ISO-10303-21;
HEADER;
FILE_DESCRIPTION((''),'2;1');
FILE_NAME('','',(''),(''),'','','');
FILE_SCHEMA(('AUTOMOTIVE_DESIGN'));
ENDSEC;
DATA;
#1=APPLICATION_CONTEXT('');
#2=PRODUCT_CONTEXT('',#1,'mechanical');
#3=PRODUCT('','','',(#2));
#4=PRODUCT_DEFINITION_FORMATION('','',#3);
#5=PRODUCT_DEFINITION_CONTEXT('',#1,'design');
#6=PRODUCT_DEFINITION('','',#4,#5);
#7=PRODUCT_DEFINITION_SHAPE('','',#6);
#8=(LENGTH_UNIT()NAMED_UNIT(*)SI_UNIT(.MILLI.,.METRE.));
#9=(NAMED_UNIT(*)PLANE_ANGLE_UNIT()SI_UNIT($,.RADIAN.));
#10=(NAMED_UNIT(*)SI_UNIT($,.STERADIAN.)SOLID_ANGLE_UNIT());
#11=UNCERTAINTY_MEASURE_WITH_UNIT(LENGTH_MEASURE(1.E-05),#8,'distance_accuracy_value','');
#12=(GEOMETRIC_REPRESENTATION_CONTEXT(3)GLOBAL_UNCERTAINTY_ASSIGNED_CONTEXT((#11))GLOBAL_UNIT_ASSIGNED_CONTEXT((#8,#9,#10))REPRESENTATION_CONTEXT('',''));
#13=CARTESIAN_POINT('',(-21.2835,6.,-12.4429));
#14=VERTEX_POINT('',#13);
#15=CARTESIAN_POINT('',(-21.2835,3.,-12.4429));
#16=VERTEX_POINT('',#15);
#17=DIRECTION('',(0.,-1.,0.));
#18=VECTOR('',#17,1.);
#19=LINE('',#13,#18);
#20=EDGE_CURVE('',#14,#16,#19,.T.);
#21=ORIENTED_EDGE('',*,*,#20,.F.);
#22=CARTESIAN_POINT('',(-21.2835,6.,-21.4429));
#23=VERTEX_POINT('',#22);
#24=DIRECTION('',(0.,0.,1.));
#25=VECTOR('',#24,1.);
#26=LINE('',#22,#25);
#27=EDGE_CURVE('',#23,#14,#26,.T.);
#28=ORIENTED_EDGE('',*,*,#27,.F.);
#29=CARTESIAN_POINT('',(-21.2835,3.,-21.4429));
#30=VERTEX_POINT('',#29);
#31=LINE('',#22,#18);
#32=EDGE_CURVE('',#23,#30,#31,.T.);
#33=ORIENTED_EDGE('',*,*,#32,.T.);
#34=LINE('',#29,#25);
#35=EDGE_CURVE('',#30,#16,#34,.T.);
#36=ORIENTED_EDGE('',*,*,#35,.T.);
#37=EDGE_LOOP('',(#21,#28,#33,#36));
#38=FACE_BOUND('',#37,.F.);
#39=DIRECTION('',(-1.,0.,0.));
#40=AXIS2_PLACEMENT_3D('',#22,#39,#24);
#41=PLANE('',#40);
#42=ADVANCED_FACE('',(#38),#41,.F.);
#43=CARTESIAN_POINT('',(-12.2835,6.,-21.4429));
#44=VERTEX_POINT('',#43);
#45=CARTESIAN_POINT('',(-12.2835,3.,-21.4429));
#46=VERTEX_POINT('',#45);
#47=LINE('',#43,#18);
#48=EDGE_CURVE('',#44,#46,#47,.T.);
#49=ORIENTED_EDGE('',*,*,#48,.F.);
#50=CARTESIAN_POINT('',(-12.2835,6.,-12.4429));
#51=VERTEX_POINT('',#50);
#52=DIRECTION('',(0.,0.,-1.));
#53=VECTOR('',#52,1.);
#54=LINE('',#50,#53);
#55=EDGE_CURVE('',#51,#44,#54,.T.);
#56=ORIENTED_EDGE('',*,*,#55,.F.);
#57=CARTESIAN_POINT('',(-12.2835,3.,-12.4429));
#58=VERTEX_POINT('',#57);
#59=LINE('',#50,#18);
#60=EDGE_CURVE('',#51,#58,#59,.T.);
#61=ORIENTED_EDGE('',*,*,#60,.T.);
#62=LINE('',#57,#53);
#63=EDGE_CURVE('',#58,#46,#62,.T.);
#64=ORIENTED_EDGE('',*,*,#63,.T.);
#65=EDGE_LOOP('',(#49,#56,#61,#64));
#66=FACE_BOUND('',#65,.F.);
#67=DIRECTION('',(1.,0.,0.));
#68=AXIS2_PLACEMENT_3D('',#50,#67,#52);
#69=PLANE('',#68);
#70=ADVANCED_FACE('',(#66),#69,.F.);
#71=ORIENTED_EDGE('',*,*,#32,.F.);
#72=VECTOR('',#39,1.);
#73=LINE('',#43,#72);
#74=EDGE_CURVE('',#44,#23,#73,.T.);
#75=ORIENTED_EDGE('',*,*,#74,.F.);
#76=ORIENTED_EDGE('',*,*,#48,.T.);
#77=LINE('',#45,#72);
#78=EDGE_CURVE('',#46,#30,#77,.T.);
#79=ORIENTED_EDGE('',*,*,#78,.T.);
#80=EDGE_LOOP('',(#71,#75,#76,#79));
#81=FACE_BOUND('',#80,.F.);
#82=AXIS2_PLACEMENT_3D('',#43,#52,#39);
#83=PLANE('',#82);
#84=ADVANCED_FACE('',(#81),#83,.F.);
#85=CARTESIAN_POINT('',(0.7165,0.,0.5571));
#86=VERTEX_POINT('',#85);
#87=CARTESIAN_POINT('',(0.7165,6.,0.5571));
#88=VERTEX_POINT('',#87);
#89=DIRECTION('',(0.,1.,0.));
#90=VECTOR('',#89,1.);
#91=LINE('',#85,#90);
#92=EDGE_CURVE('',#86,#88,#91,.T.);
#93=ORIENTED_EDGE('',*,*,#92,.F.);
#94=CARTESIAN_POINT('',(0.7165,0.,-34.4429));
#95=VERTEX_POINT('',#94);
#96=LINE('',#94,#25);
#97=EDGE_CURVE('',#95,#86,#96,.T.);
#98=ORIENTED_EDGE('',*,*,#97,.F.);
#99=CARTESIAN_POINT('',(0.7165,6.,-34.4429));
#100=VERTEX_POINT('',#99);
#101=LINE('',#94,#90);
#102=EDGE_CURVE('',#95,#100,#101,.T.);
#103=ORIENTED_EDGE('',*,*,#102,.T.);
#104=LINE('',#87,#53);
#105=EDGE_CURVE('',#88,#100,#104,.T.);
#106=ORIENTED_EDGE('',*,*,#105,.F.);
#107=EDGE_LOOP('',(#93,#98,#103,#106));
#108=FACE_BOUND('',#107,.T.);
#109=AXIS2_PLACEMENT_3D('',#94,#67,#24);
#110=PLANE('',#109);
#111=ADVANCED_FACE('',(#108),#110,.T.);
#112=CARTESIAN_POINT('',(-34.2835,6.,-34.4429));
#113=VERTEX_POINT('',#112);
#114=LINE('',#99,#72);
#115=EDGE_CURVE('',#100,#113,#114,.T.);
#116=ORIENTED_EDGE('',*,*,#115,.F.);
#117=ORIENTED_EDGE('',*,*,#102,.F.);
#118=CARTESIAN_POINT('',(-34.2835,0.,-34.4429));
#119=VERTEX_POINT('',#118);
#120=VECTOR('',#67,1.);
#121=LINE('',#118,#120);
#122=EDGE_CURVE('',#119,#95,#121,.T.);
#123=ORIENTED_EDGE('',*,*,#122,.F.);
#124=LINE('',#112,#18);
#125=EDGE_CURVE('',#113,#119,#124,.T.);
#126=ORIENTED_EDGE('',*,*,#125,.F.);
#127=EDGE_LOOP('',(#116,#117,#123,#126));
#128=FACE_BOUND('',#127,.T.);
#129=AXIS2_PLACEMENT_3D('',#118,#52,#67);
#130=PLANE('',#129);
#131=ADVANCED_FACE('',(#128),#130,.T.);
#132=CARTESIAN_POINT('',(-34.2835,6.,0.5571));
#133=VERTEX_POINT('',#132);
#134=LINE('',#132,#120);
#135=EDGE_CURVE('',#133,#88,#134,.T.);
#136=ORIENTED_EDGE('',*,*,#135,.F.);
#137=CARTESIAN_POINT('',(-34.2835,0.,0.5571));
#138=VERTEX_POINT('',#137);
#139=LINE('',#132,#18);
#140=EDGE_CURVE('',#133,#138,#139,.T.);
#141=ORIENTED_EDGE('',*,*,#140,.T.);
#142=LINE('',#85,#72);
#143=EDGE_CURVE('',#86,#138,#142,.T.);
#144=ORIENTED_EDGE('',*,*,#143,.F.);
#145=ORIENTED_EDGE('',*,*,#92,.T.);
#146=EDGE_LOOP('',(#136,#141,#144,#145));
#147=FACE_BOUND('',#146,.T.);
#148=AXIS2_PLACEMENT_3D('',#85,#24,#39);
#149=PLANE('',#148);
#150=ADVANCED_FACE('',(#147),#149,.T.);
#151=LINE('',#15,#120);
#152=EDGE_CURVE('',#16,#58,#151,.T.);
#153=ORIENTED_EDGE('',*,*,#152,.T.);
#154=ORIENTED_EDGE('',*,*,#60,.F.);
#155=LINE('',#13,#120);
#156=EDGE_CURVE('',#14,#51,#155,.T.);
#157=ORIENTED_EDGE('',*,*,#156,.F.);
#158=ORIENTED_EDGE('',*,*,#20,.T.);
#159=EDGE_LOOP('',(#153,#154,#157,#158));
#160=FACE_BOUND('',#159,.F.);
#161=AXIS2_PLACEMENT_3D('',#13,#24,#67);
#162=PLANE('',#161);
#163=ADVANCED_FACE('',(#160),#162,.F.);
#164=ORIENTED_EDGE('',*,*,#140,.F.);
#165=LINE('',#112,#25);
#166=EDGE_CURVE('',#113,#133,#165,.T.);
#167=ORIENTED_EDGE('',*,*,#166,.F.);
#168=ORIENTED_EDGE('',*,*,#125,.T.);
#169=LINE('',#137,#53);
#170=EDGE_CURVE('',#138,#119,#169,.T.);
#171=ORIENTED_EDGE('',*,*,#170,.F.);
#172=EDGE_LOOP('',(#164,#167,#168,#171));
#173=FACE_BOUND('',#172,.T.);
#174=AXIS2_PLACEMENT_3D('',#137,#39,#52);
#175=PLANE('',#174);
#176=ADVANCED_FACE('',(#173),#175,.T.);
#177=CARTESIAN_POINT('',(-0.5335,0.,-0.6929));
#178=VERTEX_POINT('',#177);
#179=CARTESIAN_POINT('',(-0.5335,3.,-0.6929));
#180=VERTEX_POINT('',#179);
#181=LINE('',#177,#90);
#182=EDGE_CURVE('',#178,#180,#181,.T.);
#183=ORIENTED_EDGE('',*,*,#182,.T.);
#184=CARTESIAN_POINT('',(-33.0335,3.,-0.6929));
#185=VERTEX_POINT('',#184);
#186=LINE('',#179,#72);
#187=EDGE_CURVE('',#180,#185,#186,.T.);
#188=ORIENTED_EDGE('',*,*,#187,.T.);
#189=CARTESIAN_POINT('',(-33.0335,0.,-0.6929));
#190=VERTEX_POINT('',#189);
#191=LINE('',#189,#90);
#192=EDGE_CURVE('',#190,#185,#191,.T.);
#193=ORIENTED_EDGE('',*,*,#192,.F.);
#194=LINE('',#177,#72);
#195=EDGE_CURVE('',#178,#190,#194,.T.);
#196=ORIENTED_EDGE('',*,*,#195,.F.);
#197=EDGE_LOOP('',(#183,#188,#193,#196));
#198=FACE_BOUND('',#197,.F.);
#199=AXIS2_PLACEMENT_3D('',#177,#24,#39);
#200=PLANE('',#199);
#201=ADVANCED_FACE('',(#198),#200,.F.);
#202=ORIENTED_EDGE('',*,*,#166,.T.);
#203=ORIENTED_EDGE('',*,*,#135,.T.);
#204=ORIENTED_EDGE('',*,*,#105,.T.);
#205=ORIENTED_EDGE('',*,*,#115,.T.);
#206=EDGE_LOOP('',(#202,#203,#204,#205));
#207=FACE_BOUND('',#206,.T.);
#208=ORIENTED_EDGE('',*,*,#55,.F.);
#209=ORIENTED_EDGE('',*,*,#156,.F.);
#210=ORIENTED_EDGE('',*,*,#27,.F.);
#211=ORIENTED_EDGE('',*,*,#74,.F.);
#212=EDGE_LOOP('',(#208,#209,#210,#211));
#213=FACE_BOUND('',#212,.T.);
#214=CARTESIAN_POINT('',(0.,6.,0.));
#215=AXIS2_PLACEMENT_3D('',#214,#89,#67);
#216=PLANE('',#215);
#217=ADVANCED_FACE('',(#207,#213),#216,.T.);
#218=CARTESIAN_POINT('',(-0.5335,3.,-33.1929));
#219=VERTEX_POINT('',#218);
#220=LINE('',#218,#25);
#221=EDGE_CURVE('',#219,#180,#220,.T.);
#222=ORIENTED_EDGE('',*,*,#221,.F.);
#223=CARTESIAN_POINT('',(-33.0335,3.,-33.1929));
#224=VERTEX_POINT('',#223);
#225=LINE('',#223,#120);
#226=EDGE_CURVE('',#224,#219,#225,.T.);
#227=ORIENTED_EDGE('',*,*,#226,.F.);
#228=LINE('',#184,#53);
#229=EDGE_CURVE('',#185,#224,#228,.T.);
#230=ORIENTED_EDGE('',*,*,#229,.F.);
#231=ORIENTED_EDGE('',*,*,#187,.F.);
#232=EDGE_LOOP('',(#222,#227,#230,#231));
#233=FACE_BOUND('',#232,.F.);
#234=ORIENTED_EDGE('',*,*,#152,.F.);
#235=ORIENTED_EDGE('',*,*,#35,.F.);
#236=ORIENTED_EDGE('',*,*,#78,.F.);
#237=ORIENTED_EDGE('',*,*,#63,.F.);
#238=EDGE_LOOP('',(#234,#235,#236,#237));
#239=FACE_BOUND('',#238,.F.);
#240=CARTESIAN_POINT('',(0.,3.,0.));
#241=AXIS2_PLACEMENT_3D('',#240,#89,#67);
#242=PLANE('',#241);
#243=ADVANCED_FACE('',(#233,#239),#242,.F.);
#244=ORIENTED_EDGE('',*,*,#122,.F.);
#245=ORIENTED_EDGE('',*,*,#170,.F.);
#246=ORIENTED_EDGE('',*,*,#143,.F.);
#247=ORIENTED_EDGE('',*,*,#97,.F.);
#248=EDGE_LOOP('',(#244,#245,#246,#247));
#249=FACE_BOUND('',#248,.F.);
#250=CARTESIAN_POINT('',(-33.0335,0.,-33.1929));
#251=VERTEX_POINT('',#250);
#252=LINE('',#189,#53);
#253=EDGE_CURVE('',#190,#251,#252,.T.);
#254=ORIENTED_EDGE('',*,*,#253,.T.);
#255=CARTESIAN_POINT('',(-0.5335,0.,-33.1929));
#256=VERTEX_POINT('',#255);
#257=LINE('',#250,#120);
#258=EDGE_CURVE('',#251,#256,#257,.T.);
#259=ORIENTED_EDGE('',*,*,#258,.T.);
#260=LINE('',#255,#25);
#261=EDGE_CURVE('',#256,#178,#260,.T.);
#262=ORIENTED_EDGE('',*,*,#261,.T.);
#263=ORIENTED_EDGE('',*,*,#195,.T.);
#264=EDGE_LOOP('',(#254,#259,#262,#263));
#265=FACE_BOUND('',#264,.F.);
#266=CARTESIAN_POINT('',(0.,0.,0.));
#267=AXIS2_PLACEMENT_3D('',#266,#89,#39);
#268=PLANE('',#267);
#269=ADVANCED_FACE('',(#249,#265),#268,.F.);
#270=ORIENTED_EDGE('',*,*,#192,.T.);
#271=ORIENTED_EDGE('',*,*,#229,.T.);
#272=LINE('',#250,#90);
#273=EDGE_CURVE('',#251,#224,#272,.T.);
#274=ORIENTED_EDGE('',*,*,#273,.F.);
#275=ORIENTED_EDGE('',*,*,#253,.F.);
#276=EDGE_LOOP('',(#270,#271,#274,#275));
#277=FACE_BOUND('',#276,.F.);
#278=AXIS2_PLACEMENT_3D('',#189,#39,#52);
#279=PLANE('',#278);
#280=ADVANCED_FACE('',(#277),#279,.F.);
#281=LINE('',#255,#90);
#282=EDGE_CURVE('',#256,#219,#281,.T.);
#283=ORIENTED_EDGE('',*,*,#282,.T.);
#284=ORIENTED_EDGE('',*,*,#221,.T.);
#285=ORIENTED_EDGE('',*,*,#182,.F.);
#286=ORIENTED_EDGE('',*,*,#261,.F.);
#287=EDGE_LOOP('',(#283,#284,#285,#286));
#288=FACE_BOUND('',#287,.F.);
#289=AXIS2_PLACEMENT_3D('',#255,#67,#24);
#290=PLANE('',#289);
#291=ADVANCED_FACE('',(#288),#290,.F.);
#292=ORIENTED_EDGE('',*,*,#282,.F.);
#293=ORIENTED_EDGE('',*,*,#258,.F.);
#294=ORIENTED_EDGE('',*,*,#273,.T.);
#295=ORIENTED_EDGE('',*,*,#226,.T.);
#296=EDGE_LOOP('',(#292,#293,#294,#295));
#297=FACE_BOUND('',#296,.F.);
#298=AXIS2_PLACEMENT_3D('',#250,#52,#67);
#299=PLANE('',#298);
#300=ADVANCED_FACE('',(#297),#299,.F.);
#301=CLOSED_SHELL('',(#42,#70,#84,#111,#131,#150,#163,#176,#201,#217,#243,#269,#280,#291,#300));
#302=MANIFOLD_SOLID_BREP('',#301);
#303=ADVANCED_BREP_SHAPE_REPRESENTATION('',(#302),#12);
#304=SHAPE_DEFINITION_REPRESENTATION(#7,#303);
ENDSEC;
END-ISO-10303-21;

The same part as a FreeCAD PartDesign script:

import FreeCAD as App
import Part
import Sketcher
from FreeCAD import Vector


def add_polygon(sketch, points):
    """Adds a closed chain of lines whose ends are joined by coincident constraints."""
    first, n = sketch.GeometryCount, len(points)
    for a, b in zip(points, points[1:] + points[:1]):
        sketch.addGeometry(Part.LineSegment(App.Vector(*a, 0), App.Vector(*b, 0)), False)
    for i in range(n):
        sketch.addConstraint(Sketcher.Constraint("Coincident", first + i, 2, first + (i + 1) % n, 1))

doc = App.newDocument("Part")
params = doc.addObject("Spreadsheet::Sheet", "Params")
for row, (alias, value) in enumerate([
    ("sketch1_width", "35 mm"),
    ("sketch1_width2", "32.5 mm"),
    ("pad1_length", "3 mm"),
    ("sketch2_width", "35 mm"),
    ("pad2_length", "3 mm"),
    ("sketch3_width", "9 mm"),
    ("pocket1_length", "3 mm"),
], start=1):
    params.set(f"A{row}", alias)
    params.set(f"B{row}", "=" + value)
    params.setAlias(f"B{row}", alias)

body = doc.addObject("PartDesign::Body", "Body")

sketch1 = body.newObject("Sketcher::SketchObject", "Sketch")
sketch1.AttachmentSupport = (doc.getObject("XZ_Plane"), [""])
sketch1.MapMode = "FlatFace"
add_polygon(sketch1, [(-34, 1), (1, 1), (1, -34), (-34, -34)])
add_polygon(sketch1, [(-1, -33), (-1, -1), (-33, -1), (-33, -33)])
sketch1.addConstraint([
    Sketcher.Constraint("Horizontal", 0),
    Sketcher.Constraint("Vertical", 1),
    Sketcher.Constraint("Horizontal", 2),
    Sketcher.Constraint("Vertical", 3),
    Sketcher.Constraint("Vertical", 4),
    Sketcher.Constraint("Horizontal", 5),
    Sketcher.Constraint("Vertical", 6),
    Sketcher.Constraint("Horizontal", 7),
    Sketcher.Constraint("Equal", 2, 1),
    Sketcher.Constraint("Equal", 7, 4),
    Sketcher.Constraint("DistanceX", 0, 1, 0, 2, 35.0),
    Sketcher.Constraint("DistanceX", 5, 2, 5, 1, 32.5),
    Sketcher.Constraint("DistanceX", 4, 2, 0, 2, 1.25),
    Sketcher.Constraint("DistanceY", 4, 2, 0, 2, 1.25),
    Sketcher.Constraint("DistanceY", -1, 1, 0, 2, 0.557),
    Sketcher.Constraint("DistanceX", -1, 1, 0, 2, 0.7165),
])
sketch1.setExpression("Constraints[18]", "Params.sketch1_width")
sketch1.setExpression("Constraints[19]", "Params.sketch1_width2")
pad1 = body.newObject("PartDesign::Pad", "Pad")
pad1.Profile = sketch1
pad1.setExpression("Length", "Params.pad1_length")
pad1.Reversed = True

sketch2 = body.newObject("Sketcher::SketchObject", "Sketch001")
sketch2.AttachmentSupport = (doc.getObject("XZ_Plane"), [""])
sketch2.MapMode = "FlatFace"
sketch2.AttachmentOffset = App.Placement(Vector(0, 0, -3), App.Rotation())
add_polygon(sketch2, [(-34, -34), (-34, 1), (1, 1), (1, -34)])
sketch2.addConstraint([
    Sketcher.Constraint("Vertical", 0),
    Sketcher.Constraint("Horizontal", 1),
    Sketcher.Constraint("Vertical", 2),
    Sketcher.Constraint("Horizontal", 3),
    Sketcher.Constraint("Equal", 3, 0),
    Sketcher.Constraint("DistanceX", 1, 1, 1, 2, 35.0),
    Sketcher.Constraint("DistanceY", -1, 1, 0, 2, 0.557),
    Sketcher.Constraint("DistanceX", 0, 2, -1, 1, 34.2835),
])
sketch2.setExpression("Constraints[9]", "Params.sketch2_width")
pad2 = body.newObject("PartDesign::Pad", "Pad001")
pad2.Profile = sketch2
pad2.setExpression("Length", "Params.pad2_length")
pad2.Reversed = True

sketch3 = body.newObject("Sketcher::SketchObject", "Sketch002")
sketch3.AttachmentSupport = (doc.getObject("XZ_Plane"), [""])
sketch3.MapMode = "FlatFace"
sketch3.AttachmentOffset = App.Placement(Vector(0, 0, -6), App.Rotation())
add_polygon(sketch3, [(-21, -21), (-21, -12), (-12, -12), (-12, -21)])
sketch3.addConstraint([
    Sketcher.Constraint("Vertical", 0),
    Sketcher.Constraint("Horizontal", 1),
    Sketcher.Constraint("Vertical", 2),
    Sketcher.Constraint("Horizontal", 3),
    Sketcher.Constraint("Equal", 3, 0),
    Sketcher.Constraint("DistanceX", 1, 1, 1, 2, 9.0),
    Sketcher.Constraint("DistanceY", 0, 2, -1, 1, 12.443),
    Sketcher.Constraint("DistanceX", 0, 2, -1, 1, 21.2835),
])
sketch3.setExpression("Constraints[9]", "Params.sketch3_width")
pocket1 = body.newObject("PartDesign::Pocket", "Pocket")
pocket1.Profile = sketch3
pocket1.setExpression("Length", "Params.pocket1_length")
pocket1.Reversed = True

doc.recompute()
